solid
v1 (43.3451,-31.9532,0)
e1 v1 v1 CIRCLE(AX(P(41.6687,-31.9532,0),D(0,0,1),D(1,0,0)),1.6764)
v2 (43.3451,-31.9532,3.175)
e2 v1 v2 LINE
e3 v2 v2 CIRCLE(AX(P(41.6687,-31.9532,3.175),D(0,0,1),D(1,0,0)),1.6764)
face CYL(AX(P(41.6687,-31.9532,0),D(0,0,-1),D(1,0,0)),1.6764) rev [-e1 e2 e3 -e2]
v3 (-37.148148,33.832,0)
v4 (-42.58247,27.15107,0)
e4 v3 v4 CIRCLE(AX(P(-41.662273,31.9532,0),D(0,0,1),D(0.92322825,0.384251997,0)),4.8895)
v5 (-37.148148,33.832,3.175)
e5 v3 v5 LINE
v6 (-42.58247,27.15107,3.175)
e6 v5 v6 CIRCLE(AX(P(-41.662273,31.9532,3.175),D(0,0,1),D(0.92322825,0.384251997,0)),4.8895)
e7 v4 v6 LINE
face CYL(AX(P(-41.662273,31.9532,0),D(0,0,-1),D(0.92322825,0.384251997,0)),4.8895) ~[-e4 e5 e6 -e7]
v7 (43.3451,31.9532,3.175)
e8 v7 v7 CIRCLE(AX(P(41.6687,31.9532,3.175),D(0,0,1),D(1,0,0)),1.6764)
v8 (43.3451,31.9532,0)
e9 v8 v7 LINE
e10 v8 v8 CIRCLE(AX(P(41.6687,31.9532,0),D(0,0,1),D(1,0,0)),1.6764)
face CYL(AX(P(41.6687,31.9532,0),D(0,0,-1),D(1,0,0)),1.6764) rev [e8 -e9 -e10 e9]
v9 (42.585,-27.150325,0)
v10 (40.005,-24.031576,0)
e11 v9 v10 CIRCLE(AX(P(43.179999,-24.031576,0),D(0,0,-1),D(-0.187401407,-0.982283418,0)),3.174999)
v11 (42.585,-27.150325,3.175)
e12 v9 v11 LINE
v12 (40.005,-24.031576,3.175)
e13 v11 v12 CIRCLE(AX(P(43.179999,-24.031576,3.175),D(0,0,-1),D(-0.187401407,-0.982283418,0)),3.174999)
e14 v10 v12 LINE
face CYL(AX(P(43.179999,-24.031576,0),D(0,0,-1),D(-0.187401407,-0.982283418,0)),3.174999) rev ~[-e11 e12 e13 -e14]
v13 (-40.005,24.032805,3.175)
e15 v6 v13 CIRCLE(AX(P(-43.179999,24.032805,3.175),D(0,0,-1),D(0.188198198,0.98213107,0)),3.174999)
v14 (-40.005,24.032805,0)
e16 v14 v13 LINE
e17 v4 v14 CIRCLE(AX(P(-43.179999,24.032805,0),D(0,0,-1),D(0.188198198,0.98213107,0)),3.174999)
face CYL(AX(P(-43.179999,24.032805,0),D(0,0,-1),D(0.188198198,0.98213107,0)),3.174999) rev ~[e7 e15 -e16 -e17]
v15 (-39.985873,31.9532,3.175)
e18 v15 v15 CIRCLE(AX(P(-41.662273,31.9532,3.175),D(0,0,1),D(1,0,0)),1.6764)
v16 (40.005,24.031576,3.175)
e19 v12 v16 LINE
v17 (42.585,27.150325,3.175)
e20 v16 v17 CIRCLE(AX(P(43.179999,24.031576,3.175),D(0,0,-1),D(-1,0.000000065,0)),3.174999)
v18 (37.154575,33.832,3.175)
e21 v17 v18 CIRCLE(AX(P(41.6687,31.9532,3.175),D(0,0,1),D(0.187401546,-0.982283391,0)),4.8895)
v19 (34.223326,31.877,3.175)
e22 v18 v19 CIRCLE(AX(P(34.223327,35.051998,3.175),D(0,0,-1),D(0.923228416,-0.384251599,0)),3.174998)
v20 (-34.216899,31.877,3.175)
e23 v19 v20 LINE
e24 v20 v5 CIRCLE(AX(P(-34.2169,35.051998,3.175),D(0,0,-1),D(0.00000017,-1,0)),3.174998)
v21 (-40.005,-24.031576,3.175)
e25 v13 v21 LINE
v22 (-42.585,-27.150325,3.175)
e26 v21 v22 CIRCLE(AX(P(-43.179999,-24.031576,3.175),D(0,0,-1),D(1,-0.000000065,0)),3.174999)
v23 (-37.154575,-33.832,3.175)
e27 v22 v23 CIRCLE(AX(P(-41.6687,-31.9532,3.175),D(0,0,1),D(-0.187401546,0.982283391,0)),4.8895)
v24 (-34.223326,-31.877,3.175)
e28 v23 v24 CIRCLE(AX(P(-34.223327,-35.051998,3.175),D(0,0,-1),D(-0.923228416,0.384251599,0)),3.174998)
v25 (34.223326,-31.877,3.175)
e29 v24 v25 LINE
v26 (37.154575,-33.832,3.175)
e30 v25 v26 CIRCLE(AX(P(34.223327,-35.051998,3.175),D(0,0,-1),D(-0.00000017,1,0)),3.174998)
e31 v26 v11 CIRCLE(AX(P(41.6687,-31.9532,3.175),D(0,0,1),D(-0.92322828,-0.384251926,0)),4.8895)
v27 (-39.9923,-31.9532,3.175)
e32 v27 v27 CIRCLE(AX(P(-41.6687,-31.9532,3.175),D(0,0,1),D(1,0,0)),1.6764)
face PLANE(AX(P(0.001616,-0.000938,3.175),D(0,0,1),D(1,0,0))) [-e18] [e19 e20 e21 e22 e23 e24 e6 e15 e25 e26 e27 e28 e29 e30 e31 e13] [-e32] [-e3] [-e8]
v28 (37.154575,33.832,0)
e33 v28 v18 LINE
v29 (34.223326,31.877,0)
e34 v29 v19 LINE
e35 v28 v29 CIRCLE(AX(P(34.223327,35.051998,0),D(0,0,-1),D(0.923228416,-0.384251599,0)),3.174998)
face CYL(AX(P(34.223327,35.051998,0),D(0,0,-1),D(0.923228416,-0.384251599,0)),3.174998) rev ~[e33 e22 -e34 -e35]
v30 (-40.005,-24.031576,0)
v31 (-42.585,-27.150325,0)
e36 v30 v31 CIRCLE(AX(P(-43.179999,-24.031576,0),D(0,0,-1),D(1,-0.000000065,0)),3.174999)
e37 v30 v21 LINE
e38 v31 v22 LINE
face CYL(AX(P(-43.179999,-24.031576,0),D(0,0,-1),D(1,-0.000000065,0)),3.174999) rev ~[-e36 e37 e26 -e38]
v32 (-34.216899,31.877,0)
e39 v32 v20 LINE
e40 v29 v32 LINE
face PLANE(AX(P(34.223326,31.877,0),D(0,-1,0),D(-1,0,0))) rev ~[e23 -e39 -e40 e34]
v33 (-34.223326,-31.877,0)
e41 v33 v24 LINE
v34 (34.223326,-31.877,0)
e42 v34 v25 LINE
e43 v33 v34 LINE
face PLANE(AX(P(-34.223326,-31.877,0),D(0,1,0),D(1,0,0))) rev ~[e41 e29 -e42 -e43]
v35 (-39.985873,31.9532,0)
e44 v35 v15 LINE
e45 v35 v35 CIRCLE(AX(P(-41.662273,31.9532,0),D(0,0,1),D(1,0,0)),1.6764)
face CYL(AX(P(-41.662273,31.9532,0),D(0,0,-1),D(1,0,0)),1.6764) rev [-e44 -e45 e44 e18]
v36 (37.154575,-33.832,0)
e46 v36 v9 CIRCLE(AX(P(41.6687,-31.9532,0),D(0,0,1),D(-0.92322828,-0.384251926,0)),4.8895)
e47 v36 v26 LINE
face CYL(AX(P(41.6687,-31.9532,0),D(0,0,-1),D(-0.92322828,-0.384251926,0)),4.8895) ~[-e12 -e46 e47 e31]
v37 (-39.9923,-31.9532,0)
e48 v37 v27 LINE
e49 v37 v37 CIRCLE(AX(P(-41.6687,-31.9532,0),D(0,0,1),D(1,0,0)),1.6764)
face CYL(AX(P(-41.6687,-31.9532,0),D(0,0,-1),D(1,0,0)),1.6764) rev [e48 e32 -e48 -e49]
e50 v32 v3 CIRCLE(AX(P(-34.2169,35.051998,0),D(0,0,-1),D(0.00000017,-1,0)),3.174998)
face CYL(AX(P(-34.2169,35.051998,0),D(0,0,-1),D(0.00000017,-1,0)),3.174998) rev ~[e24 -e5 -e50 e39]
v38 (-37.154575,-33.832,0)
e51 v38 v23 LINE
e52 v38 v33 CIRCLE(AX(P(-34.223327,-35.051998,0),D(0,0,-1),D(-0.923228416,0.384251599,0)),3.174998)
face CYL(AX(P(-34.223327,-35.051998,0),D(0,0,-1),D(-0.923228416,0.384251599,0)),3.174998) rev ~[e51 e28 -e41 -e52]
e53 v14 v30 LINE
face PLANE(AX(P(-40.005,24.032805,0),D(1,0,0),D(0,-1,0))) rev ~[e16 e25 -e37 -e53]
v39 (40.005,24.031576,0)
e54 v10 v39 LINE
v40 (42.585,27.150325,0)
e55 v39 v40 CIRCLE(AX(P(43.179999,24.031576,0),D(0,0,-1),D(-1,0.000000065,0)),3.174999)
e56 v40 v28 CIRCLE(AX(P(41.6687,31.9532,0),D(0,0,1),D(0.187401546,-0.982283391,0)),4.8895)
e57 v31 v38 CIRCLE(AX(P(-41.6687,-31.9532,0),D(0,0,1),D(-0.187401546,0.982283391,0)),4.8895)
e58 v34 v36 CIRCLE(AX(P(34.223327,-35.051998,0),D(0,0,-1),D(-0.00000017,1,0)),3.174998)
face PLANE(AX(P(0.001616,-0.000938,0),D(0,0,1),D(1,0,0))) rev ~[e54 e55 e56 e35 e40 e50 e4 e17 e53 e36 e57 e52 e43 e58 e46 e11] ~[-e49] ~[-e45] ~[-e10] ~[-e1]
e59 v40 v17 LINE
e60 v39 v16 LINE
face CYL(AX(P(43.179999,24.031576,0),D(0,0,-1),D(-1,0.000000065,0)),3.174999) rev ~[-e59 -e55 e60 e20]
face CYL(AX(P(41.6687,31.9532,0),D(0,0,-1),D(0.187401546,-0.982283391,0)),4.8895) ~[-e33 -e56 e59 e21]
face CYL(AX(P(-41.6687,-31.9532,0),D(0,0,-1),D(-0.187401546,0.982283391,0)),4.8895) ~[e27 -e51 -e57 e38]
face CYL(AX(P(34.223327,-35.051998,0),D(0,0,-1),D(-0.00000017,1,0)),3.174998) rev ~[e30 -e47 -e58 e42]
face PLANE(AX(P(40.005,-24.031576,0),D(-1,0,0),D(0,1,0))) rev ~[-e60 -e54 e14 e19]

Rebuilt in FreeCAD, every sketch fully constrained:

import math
import FreeCAD as App
import Part
import Sketcher

V = App.Vector
Q = App.Units.Quantity

doc = App.newDocument("Part")
body = doc.addObject("PartDesign::Body", "Body")

# Sketch on XY plane
sketch1 = body.newObject("Sketcher::SketchObject", "Sketch")
sketch1.AttachmentSupport = (doc.getObject("XY_Plane"), [""])
sketch1.MapMode = "FlatFace"
sketch1.addGeometry([
    Part.LineSegment(V(34.223326, 31.877, 0), V(-34.216899, 31.877, 0)),  # 0
    Part.ArcOfCircle(Part.Circle(V(-34.2169, 35.051998, 0), V(0, 0, 1), 3.174998), math.radians(-157.402714), math.radians(-89.99999)),  # 1
    Part.ArcOfCircle(Part.Circle(V(-41.662273, 31.9532, 0), V(0, 0, 1), 4.8895), math.radians(22.597311), math.radians(259.152324)),  # 2
    Part.ArcOfCircle(Part.Circle(V(-43.179999, 24.032805, 0), V(0, 0, 1), 3.174999), math.radians(0.000005), math.radians(79.152348)),  # 3
    Part.LineSegment(V(-40.005, 24.032805, 0), V(-40.005, -24.031576, 0)),  # 4
    Part.ArcOfCircle(Part.Circle(V(-43.179999, -24.031576, 0), V(0, 0, 1), 3.174999), math.radians(-79.198828), math.radians(-0.000004)),  # 5
    Part.ArcOfCircle(Part.Circle(V(-41.6687, -31.9532, 0), V(0, 0, 1), 4.8895), math.radians(100.80118), math.radians(337.402693)),  # 6
    Part.ArcOfCircle(Part.Circle(V(-34.223327, -35.051998, 0), V(0, 0, 1), 3.174998), math.radians(89.99999), math.radians(157.402714)),  # 7
    Part.LineSegment(V(-34.223326, -31.877, 0), V(34.223326, -31.877, 0)),  # 8
    Part.ArcOfCircle(Part.Circle(V(34.223327, -35.051998, 0), V(0, 0, 1), 3.174998), math.radians(22.597286), math.radians(90.00001)),  # 9
    Part.ArcOfCircle(Part.Circle(V(41.6687, -31.9532, 0), V(0, 0, 1), 4.8895), math.radians(-157.402693), math.radians(79.19882)),  # 10
    Part.ArcOfCircle(Part.Circle(V(43.179999, -24.031576, 0), V(0, 0, 1), 3.174999), math.radians(-179.999996), math.radians(-100.801172)),  # 11
    Part.LineSegment(V(40.005, -24.031576, 0), V(40.005, 24.031576, 0)),  # 12
    Part.ArcOfCircle(Part.Circle(V(43.179999, 24.031576, 0), V(0, 0, 1), 3.174999), math.radians(100.801172), math.radians(179.999996)),  # 13
    Part.ArcOfCircle(Part.Circle(V(41.6687, 31.9532, 0), V(0, 0, 1), 4.8895), math.radians(-79.19882), math.radians(157.402693)),  # 14
    Part.ArcOfCircle(Part.Circle(V(34.223327, 35.051998, 0), V(0, 0, 1), 3.174998), math.radians(-90.00001), math.radians(-22.597286)),  # 15
    Part.Circle(V(-41.6687, -31.9532, 0), V(0, 0, 1), 1.6764),  # 16
    Part.Circle(V(41.6687, -31.9532, 0), V(0, 0, 1), 1.6764),  # 17
    Part.Circle(V(-41.662273, 31.9532, 0), V(0, 0, 1), 1.6764),  # 18
    Part.Circle(V(41.6687, 31.9532, 0), V(0, 0, 1), 1.6764),  # 19
], False)
sketch1.addConstraint([
    Sketcher.Constraint("Coincident", 0, 2, 1, 2),
    Sketcher.Constraint("Coincident", 1, 1, 2, 1),
    Sketcher.Constraint("Coincident", 2, 2, 3, 2),
    Sketcher.Constraint("Coincident", 3, 1, 4, 1),
    Sketcher.Constraint("Coincident", 4, 2, 5, 2),
    Sketcher.Constraint("Coincident", 5, 1, 6, 1),
    Sketcher.Constraint("Coincident", 6, 2, 7, 2),
    Sketcher.Constraint("Coincident", 7, 1, 8, 1),
    Sketcher.Constraint("Coincident", 8, 2, 9, 2),
    Sketcher.Constraint("Coincident", 9, 1, 10, 1),
    Sketcher.Constraint("Coincident", 10, 2, 11, 2),
    Sketcher.Constraint("Coincident", 11, 1, 12, 1),
    Sketcher.Constraint("Coincident", 12, 2, 13, 2),
    Sketcher.Constraint("Coincident", 13, 1, 14, 1),
    Sketcher.Constraint("Coincident", 14, 2, 15, 2),
    Sketcher.Constraint("Coincident", 15, 1, 0, 1),
    Sketcher.Constraint("Horizontal", 0),
    Sketcher.Constraint("Vertical", 4),
    Sketcher.Constraint("Horizontal", 8),
    Sketcher.Constraint("Vertical", 12),
    Sketcher.Constraint("Coincident", 16, 3, 6, 3),
    Sketcher.Constraint("Coincident", 17, 3, 10, 3),
    Sketcher.Constraint("Coincident", 18, 3, 2, 3),
    Sketcher.Constraint("Coincident", 19, 3, 14, 3),
    Sketcher.Constraint("Diameter", 16, Q("0.132 in")),
    Sketcher.Constraint("Diameter", 17, Q("0.132 in")),
    Sketcher.Constraint("Diameter", 18, Q("0.132 in")),
    Sketcher.Constraint("Diameter", 19, Q("0.132 in")),
    Sketcher.Constraint("Radius", 1, Q("0.1249999 in")),
    Sketcher.Constraint("Radius", 3, Q("0.125 in")),
    Sketcher.Constraint("Radius", 5, Q("0.125 in")),
    Sketcher.Constraint("Radius", 7, Q("0.1249999 in")),
    Sketcher.Constraint("Radius", 9, Q("0.1249999 in")),
    Sketcher.Constraint("Radius", 11, Q("0.125 in")),
    Sketcher.Constraint("Radius", 13, Q("0.125 in")),
    Sketcher.Constraint("Radius", 15, Q("0.1249999 in")),
    Sketcher.Constraint("DistanceX", 3, 3, -1, 1, Q("1.7 in")),
    Sketcher.Constraint("DistanceX", -1, 1, 11, 3, Q("1.7 in")),
    Sketcher.Constraint("Radius", 2, Q("0.1925 in")),
    Sketcher.Constraint("Radius", 6, Q("0.1925 in")),
    Sketcher.Constraint("Radius", 10, Q("0.1925 in")),
    Sketcher.Constraint("Radius", 14, Q("0.1925 in")),
    Sketcher.Constraint("DistanceY", -1, 1, 1, 3, Q("1.3799999 in")),
    Sketcher.Constraint("DistanceY", 7, 3, -1, 1, Q("1.3799999 in")),
    Sketcher.Constraint("DistanceY", -1, 1, 2, 3, Q("1.258 in")),
    Sketcher.Constraint("DistanceY", 6, 3, -1, 1, Q("1.258 in")),
    Sketcher.Constraint("DistanceY", 10, 3, -1, 1, Q("1.258 in")),
    Sketcher.Constraint("DistanceY", -1, 1, 14, 3, Q("1.258 in")),
    Sketcher.Constraint("DistanceX", 6, 3, 10, 3, Q("3.281 in")),
    Sketcher.Constraint("DistanceX", 6, 3, -1, 1, Q("1.6405 in")),
    Sketcher.Constraint("DistanceX", -1, 1, 14, 3, Q("1.6405 in")),
    Sketcher.Constraint("DistanceX", 8, 1, 8, 2, Q("68.446652 mm")),
    Sketcher.Constraint("DistanceY", 4, 2, 4, 1, Q("48.064381 mm")),
    Sketcher.Constraint("DistanceX", 1, 3, -1, 1, Q("34.2169 mm")),
    Sketcher.Constraint("DistanceX", 0, 2, -1, 1, Q("34.216899 mm")),
    Sketcher.Constraint("DistanceY", -1, 1, 1, 1, Q("33.832 mm")),
    Sketcher.Constraint("DistanceX", 5, 1, -1, 1, Q("42.585 mm")),
    Sketcher.Constraint("DistanceY", 6, 2, -1, 1, Q("33.832 mm")),
    Sketcher.Constraint("DistanceY", 9, 1, -1, 1, Q("33.832 mm")),
    Sketcher.Constraint("DistanceX", -1, 1, 10, 2, Q("42.585 mm")),
    Sketcher.Constraint("DistanceX", -1, 1, 13, 1, Q("42.585 mm")),
    Sketcher.Constraint("DistanceY", -1, 1, 14, 2, Q("33.832 mm")),
    Sketcher.Constraint("DistanceX", 0, 2, 0, 1, Q("68.440225 mm")),
    Sketcher.Constraint("DistanceY", 12, 1, 12, 2, Q("48.063152 mm")),
    Sketcher.Constraint("DistanceX", 2, 2, -1, 1, Q("42.58247 mm")),
    Sketcher.Constraint("DistanceY", 5, 1, 4, 2, Q("3.118749 mm")),
    Sketcher.Constraint("DistanceX", 6, 2, 7, 1, Q("2.931249 mm")),
    Sketcher.Constraint("DistanceY", 10, 2, 11, 1, Q("3.118749 mm")),
])
pad1 = body.newObject("PartDesign::Pad", "Pad")
pad1.Profile = sketch1
pad1.Length = Q("0.125 in")

doc.recompute()
